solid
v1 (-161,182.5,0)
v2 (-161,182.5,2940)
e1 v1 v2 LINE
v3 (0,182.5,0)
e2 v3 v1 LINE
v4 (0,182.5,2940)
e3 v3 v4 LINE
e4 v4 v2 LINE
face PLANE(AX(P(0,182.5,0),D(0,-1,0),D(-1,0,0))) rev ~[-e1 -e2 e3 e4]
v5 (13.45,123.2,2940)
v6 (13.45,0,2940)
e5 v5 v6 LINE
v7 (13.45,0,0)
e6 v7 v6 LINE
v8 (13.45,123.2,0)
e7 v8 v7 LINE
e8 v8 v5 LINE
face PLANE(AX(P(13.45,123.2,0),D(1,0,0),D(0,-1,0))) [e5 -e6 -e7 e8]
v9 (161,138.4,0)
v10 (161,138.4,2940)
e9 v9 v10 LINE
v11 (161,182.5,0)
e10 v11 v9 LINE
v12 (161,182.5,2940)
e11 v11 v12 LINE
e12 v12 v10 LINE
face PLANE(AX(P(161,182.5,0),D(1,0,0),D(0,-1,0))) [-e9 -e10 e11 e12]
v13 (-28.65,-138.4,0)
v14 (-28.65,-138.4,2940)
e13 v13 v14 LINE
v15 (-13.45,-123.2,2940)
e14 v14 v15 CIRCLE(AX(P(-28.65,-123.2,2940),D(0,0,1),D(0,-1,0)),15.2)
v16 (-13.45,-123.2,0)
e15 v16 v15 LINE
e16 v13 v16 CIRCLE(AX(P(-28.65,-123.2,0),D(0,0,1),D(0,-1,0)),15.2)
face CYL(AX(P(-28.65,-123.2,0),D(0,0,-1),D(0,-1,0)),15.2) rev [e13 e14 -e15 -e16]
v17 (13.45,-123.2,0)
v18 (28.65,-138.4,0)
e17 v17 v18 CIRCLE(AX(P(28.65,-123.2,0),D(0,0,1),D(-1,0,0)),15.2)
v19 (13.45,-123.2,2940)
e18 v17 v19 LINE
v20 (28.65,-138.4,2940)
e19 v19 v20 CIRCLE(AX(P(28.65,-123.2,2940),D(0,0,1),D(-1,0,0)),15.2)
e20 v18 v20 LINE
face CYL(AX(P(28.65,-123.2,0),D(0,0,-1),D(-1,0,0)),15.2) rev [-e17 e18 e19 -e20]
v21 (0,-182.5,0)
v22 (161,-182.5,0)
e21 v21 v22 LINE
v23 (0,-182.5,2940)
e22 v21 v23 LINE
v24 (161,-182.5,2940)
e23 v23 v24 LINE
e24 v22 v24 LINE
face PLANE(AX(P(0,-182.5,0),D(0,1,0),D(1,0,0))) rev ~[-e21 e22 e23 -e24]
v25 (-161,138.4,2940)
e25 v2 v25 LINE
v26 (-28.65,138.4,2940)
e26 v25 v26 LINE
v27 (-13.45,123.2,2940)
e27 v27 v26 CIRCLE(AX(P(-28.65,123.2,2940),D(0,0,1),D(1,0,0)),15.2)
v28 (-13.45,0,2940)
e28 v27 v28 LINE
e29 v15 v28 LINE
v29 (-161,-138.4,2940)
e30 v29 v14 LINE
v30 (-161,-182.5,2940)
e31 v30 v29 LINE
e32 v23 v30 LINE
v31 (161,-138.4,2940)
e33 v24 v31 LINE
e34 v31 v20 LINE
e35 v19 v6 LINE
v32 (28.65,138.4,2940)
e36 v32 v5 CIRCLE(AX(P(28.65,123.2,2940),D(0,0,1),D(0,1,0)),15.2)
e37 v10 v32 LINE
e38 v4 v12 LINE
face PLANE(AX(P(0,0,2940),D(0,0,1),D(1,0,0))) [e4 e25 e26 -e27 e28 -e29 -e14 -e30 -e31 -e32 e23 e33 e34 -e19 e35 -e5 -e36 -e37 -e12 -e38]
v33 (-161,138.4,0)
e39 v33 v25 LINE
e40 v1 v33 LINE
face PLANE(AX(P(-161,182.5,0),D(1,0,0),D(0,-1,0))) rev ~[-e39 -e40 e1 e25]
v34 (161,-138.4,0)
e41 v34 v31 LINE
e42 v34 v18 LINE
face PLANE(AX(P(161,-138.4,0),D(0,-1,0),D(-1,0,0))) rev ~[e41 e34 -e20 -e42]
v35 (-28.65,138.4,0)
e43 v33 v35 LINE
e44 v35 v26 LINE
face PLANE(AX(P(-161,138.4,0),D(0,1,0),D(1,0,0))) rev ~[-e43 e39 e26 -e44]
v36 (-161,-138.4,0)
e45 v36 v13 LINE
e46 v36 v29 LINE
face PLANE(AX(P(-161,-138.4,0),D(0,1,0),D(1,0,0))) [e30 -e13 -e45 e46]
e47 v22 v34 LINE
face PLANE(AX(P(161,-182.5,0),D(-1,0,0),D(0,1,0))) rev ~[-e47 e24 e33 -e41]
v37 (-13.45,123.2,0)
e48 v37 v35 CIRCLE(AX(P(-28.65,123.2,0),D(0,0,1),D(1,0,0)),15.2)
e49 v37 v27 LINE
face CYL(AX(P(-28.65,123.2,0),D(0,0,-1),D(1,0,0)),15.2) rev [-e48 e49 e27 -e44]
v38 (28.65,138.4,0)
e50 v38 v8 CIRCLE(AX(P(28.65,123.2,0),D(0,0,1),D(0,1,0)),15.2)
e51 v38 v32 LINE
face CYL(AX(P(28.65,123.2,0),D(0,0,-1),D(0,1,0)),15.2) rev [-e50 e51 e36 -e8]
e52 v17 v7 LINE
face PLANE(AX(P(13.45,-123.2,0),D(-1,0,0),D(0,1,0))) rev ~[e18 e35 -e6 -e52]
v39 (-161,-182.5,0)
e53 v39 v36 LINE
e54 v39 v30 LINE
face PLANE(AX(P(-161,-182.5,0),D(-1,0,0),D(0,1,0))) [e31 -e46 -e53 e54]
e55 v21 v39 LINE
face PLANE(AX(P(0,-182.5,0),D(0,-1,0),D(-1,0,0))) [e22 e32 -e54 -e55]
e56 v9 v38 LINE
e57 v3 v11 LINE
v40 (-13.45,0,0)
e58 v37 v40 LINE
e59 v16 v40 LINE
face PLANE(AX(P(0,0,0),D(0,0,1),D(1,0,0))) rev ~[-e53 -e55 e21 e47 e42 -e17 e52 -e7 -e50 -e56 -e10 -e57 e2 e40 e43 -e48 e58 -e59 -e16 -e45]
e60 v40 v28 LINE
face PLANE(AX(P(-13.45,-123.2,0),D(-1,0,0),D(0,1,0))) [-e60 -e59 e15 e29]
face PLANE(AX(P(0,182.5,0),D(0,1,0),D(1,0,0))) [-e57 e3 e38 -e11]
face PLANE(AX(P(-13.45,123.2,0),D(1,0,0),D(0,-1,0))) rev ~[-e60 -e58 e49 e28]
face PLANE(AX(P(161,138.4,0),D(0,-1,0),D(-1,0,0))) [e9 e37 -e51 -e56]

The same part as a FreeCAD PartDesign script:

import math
import FreeCAD as App
import Part
import Sketcher
from FreeCAD import Vector

doc = App.newDocument("Part")
body = doc.addObject("PartDesign::Body", "Body")

sketch1 = body.newObject("Sketcher::SketchObject", "Sketch")
sketch1.AttachmentSupport = (doc.getObject("XY_Plane"), [""])
sketch1.MapMode = "FlatFace"
sketch1.addGeometry(Part.LineSegment(Vector(-161, -138, 0), Vector(-161, -182, 0)), False)
sketch1.addGeometry(Part.LineSegment(Vector(-161, -182, 0), Vector(161, -182, 0)), False)
sketch1.addGeometry(Part.LineSegment(Vector(161, -182, 0), Vector(161, -138, 0)), False)
sketch1.addGeometry(Part.LineSegment(Vector(161, -138, 0), Vector(29, -138, 0)), False)
sketch1.addGeometry(Part.ArcOfCircle(Part.Circle(Vector(29, -123, 0), Vector(0, 0, 1), 15), math.radians(180), math.radians(270)), False)
sketch1.addGeometry(Part.LineSegment(Vector(13, -123, 0), Vector(13, 123, 0)), False)
sketch1.addGeometry(Part.ArcOfCircle(Part.Circle(Vector(29, 123, 0), Vector(0, 0, 1), 15), math.radians(90), math.radians(180)), False)
sketch1.addGeometry(Part.LineSegment(Vector(29, 138, 0), Vector(161, 138, 0)), False)
sketch1.addGeometry(Part.LineSegment(Vector(161, 138, 0), Vector(161, 182, 0)), False)
sketch1.addGeometry(Part.LineSegment(Vector(161, 182, 0), Vector(-161, 182, 0)), False)
sketch1.addGeometry(Part.LineSegment(Vector(-161, 182, 0), Vector(-161, 138, 0)), False)
sketch1.addGeometry(Part.LineSegment(Vector(-161, 138, 0), Vector(-29, 138, 0)), False)
sketch1.addGeometry(Part.ArcOfCircle(Part.Circle(Vector(-29, 123, 0), Vector(0, 0, 1), 15), math.radians(0), math.radians(90)), False)
sketch1.addGeometry(Part.LineSegment(Vector(-13, 123, 0), Vector(-13, -123, 0)), False)
sketch1.addGeometry(Part.ArcOfCircle(Part.Circle(Vector(-29, -123, 0), Vector(0, 0, 1), 15), math.radians(-90), math.radians(0)), False)
sketch1.addGeometry(Part.LineSegment(Vector(-29, -138, 0), Vector(-161, -138, 0)), False)
sketch1.addConstraint(Sketcher.Constraint("Coincident", 0, 2, 1, 1))
sketch1.addConstraint(Sketcher.Constraint("Coincident", 1, 2, 2, 1))
sketch1.addConstraint(Sketcher.Constraint("Coincident", 2, 2, 3, 1))
sketch1.addConstraint(Sketcher.Constraint("Tangent", 3, 2, 4, 2))
sketch1.addConstraint(Sketcher.Constraint("Tangent", 4, 1, 5, 1))
sketch1.addConstraint(Sketcher.Constraint("Tangent", 5, 2, 6, 2))
sketch1.addConstraint(Sketcher.Constraint("Tangent", 6, 1, 7, 1))
sketch1.addConstraint(Sketcher.Constraint("Coincident", 7, 2, 8, 1))
sketch1.addConstraint(Sketcher.Constraint("Coincident", 8, 2, 9, 1))
sketch1.addConstraint(Sketcher.Constraint("Coincident", 9, 2, 10, 1))
sketch1.addConstraint(Sketcher.Constraint("Coincident", 10, 2, 11, 1))
sketch1.addConstraint(Sketcher.Constraint("Tangent", 11, 2, 12, 2))
sketch1.addConstraint(Sketcher.Constraint("Tangent", 12, 1, 13, 1))
sketch1.addConstraint(Sketcher.Constraint("Tangent", 13, 2, 14, 2))
sketch1.addConstraint(Sketcher.Constraint("Tangent", 14, 1, 15, 1))
sketch1.addConstraint(Sketcher.Constraint("Coincident", 15, 2, 0, 1))
sketch1.addConstraint(Sketcher.Constraint("Vertical", 0))
sketch1.addConstraint(Sketcher.Constraint("Horizontal", 1))
sketch1.addConstraint(Sketcher.Constraint("Vertical", 2))
sketch1.addConstraint(Sketcher.Constraint("Horizontal", 3))
sketch1.addConstraint(Sketcher.Constraint("Vertical", 5))
sketch1.addConstraint(Sketcher.Constraint("Horizontal", 7))
sketch1.addConstraint(Sketcher.Constraint("Vertical", 8))
sketch1.addConstraint(Sketcher.Constraint("Horizontal", 9))
sketch1.addConstraint(Sketcher.Constraint("Vertical", 10))
sketch1.addConstraint(Sketcher.Constraint("Horizontal", 11))
sketch1.addConstraint(Sketcher.Constraint("Vertical", 13))
sketch1.addConstraint(Sketcher.Constraint("Horizontal", 15))
sketch1.addConstraint(Sketcher.Constraint("Equal", 4, 6))
sketch1.addConstraint(Sketcher.Constraint("Equal", 6, 12))
sketch1.addConstraint(Sketcher.Constraint("Equal", 12, 14))
sketch1.addConstraint(Sketcher.Constraint("Symmetric", 4, 3, 12, 3, -1, 1))
sketch1.addConstraint(Sketcher.Constraint("Symmetric", 0, 2, 8, 2, -1, 1))
sketch1.addConstraint(Sketcher.Constraint("Symmetric", 7, 2, 10, 2, -2))
sketch1.addConstraint(Sketcher.Constraint("Symmetric", 2, 2, 15, 2, -2))
sketch1.addConstraint(Sketcher.Constraint("Radius", 4, 15.2))
sketch1.addConstraint(Sketcher.Constraint("DistanceY", 0, 2, 0, 1, 44.1))
sketch1.addConstraint(Sketcher.Constraint("DistanceX", 0, 2, -1, 1, 161.0))
sketch1.addConstraint(Sketcher.Constraint("DistanceY", 0, 2, -1, 1, 182.5))
sketch1.addConstraint(Sketcher.Constraint("DistanceX", -1, 1, 4, 1, 13.45))
pad1 = body.newObject("PartDesign::Pad", "Pad")
pad1.Profile = sketch1
pad1.Length = 2940

doc.recompute()
